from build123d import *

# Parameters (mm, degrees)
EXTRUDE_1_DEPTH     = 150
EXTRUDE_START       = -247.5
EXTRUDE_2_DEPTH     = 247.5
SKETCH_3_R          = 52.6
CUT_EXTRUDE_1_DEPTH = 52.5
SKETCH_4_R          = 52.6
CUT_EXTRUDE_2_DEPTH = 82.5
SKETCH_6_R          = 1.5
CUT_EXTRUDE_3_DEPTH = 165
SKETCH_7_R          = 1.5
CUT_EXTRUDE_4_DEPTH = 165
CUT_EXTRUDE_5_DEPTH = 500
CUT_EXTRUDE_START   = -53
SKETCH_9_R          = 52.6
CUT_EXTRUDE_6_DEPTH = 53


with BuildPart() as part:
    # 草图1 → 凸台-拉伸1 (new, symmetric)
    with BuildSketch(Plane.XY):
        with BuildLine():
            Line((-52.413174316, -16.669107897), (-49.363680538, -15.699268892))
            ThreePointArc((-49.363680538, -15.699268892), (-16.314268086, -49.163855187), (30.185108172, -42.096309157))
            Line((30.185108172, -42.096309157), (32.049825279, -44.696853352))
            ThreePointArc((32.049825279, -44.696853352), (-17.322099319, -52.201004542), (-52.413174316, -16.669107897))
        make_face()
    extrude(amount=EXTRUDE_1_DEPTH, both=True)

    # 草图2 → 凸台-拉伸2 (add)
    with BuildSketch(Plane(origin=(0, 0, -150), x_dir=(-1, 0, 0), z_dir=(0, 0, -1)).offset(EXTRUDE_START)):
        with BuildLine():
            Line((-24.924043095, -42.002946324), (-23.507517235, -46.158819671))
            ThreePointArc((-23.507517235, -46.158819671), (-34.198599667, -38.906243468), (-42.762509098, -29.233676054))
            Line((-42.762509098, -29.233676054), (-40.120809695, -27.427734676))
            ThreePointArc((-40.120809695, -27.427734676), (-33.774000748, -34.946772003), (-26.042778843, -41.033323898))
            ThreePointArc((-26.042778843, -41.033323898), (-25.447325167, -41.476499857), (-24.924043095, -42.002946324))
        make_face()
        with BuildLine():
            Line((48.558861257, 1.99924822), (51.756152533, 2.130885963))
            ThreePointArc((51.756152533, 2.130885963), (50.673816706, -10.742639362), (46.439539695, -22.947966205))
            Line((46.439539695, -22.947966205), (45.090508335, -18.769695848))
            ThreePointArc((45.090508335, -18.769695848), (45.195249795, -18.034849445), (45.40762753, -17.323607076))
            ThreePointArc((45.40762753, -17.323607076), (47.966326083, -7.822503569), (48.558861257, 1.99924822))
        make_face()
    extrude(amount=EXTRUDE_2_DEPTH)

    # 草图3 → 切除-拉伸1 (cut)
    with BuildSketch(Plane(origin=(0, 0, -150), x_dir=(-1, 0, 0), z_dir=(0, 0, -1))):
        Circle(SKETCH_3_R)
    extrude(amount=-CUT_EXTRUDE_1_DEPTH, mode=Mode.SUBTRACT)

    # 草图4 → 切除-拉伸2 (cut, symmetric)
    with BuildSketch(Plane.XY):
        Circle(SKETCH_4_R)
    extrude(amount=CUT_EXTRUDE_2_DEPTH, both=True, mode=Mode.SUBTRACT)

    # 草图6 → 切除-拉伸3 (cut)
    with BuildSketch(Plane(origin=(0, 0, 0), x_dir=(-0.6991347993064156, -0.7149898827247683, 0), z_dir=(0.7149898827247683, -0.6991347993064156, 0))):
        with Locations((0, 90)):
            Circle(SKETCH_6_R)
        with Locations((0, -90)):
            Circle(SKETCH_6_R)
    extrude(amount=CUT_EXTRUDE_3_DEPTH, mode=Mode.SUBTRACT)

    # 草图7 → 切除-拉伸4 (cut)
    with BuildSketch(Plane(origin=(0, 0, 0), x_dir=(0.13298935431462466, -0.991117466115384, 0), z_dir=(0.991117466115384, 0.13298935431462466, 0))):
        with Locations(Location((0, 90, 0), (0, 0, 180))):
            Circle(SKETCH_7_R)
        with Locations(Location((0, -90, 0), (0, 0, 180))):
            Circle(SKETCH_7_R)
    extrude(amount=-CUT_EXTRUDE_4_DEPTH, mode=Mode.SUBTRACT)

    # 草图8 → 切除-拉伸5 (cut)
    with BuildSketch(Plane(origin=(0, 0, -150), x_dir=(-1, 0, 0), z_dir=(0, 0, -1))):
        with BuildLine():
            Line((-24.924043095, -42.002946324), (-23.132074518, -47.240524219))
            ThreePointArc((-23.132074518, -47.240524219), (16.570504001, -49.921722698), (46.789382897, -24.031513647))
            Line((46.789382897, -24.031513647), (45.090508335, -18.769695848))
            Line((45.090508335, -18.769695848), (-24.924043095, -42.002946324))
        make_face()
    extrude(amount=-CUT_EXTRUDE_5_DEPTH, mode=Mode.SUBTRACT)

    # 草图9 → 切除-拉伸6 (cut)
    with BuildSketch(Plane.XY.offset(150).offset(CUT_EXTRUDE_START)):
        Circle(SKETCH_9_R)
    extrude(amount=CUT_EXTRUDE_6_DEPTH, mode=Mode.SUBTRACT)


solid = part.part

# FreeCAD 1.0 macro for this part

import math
import FreeCAD as App
import Part
import Sketcher
from FreeCAD import Vector

doc = App.newDocument("Part")
body = doc.addObject("PartDesign::Body", "Body")

# Sketch on XY plane
sketch1 = body.newObject("Sketcher::SketchObject", "Sketch")
sketch1.AttachmentSupport = (doc.getObject("XY_Plane"), [""])
sketch1.MapMode = "FlatFace"
sketch1.addGeometry([
    Part.LineSegment(Vector(-49.363681, -15.699269, 0), Vector(-52.413174, -16.669108, 0)),
    Part.ArcOfCircle(Part.Circle(Vector(0, 0, 0), Vector(0, 0, 1), 55), math.radians(-162.35763), math.radians(-54.35763)),
    Part.LineSegment(Vector(32.049825, -44.696853, 0), Vector(30.185108, -42.096309, 0)),
    Part.ArcOfCircle(Part.Circle(Vector(0, 0, 0), Vector(0, 0, 1), 51.8), math.radians(-162.35763), math.radians(-54.35763)),
], False)
sketch1.addConstraint([
    Sketcher.Constraint("Coincident", 0, 2, 1, 1),
    Sketcher.Constraint("Coincident", 1, 2, 2, 1),
    Sketcher.Constraint("Coincident", 2, 2, 3, 2),
    Sketcher.Constraint("Coincident", 3, 1, 0, 1),
    Sketcher.Constraint("Coincident", 1, 3, -1, 1),
    Sketcher.Constraint("Coincident", 3, 3, -1, 1),
    Sketcher.Constraint("Radius", 1, 55.0),
    Sketcher.Constraint("Radius", 3, 51.8),
    Sketcher.Constraint("DistanceX", 0, 2, 1, 2, 84.463),
    Sketcher.Constraint("DistanceY", 2, 2, 0, 2, 25.427201),
    Sketcher.Constraint("DistanceX", -1, 1, 2, 2, 30.185108),
    Sketcher.Constraint("DistanceX", 3, 1, -1, 1, 49.363681),
])
pad1 = body.newObject("PartDesign::Pad", "Pad")
pad1.Profile = sketch1
pad1.Length = 300
pad1.Midplane = True

# Sketch on XY plane
sketch2 = body.newObject("Sketcher::SketchObject", "Sketch001")
sketch2.AttachmentSupport = (doc.getObject("XY_Plane"), [""])
sketch2.MapMode = "FlatFace"
sketch2.AttachmentOffset = App.Placement(Vector(0, 0, 97.5), App.Rotation())
sketch2.addGeometry([
    Part.LineSegment(Vector(23.507517, -46.15882, 0), Vector(24.924043, -42.002946, 0)),  # 0
    Part.ArcOfCircle(Part.Circle(Vector(28.722077, -45.254859, 0), Vector(0, 0, 1), 5), math.radians(122.402229), math.radians(139.429546)),  # 1
    Part.ArcOfCircle(Part.Circle(Vector(0, 0, 0), Vector(0, 0, 1), 48.6), math.radians(-57.597771), math.radians(-34.35763)),  # 2
    Part.LineSegment(Vector(40.12081, -27.427735, 0), Vector(42.762509, -29.233676, 0)),  # 3
    Part.ArcOfCircle(Part.Circle(Vector(0, 0, 0), Vector(0, 0, 1), 51.8), math.radians(-63.011409), math.radians(-34.35763)),  # 4
    Part.LineSegment(Vector(-51.756153, 2.130886, 0), Vector(-48.558861, 1.999248, 0)),  # 5
    Part.ArcOfCircle(Part.Circle(Vector(0, 0, 0), Vector(0, 0, 1), 48.6), math.radians(177.64237), math.radians(200.882511)),  # 6
    Part.ArcOfCircle(Part.Circle(Vector(-50.079194, -19.105871, 0), Vector(0, 0, 1), 5), math.radians(3.855194), math.radians(20.882511)),  # 7
    Part.LineSegment(Vector(-45.090508, -18.769696, 0), Vector(-46.43954, -22.947966, 0)),  # 8
    Part.ArcOfCircle(Part.Circle(Vector(0, 0, 0), Vector(0, 0, 1), 51.8), math.radians(177.64237), math.radians(206.296149)),  # 9
], False)
sketch2.addConstraint([
    Sketcher.Constraint("Coincident", 0, 2, 1, 2),
    Sketcher.Constraint("Tangent", 1, 1, 2, 1),
    Sketcher.Constraint("Coincident", 2, 2, 3, 1),
    Sketcher.Constraint("Coincident", 3, 2, 4, 2),
    Sketcher.Constraint("Coincident", 4, 1, 0, 1),
    Sketcher.Constraint("Coincident", 5, 2, 6, 1),
    Sketcher.Constraint("Tangent", 6, 2, 7, 2),
    Sketcher.Constraint("Coincident", 7, 1, 8, 1),
    Sketcher.Constraint("Coincident", 8, 2, 9, 2),
    Sketcher.Constraint("Coincident", 9, 1, 5, 1),
    Sketcher.Constraint("Coincident", 2, 3, -1, 1),
    Sketcher.Constraint("Coincident", 4, 3, -1, 1),
    Sketcher.Constraint("Coincident", 6, 3, -1, 1),
    Sketcher.Constraint("Coincident", 9, 3, -1, 1),
    Sketcher.Constraint("Equal", 2, 6),
    Sketcher.Constraint("Equal", 1, 7),
    Sketcher.Constraint("Equal", 4, 9),
    Sketcher.Constraint("Equal", 0, 8),
    Sketcher.Constraint("Radius", 1, 5.0),
    Sketcher.Constraint("Radius", 2, 48.6),
    Sketcher.Constraint("Radius", 4, 51.8),
    Sketcher.Constraint("DistanceX", 1, 1, 1, 3, 2.679298),
    Sketcher.Constraint("DistanceX", 2, 2, 3, 2, 2.641699),
    Sketcher.Constraint("DistanceY", 7, 3, -1, 1, 19.105871),
    Sketcher.Constraint("DistanceX", -1, 1, 2, 2, 40.12081),
    Sketcher.Constraint("DistanceY", 4, 1, -1, 1, 46.15882),
    Sketcher.Constraint("DistanceX", 5, 2, -1, 1, 48.558861),
    Sketcher.Constraint("DistanceX", 7, 1, -1, 1, 45.090508),
    Sketcher.Constraint("DistanceX", 8, 2, -1, 1, 46.43954),
    Sketcher.Constraint("DistanceX", 9, 1, 5, 2, 3.197291),
])
pad2 = body.newObject("PartDesign::Pad", "Pad001")
pad2.Profile = sketch2
pad2.Length = 247.5
pad2.Reversed = True

# Sketch on XY plane
sketch3 = body.newObject("Sketcher::SketchObject", "Sketch002")
sketch3.AttachmentSupport = (doc.getObject("XY_Plane"), [""])
sketch3.MapMode = "FlatFace"
sketch3.AttachmentOffset = App.Placement(Vector(0, 0, -150), App.Rotation())
sketch3.addGeometry(Part.Circle(Vector(0, 0, 0), Vector(0, 0, 1), 52.6), False)
sketch3.addConstraint([
    Sketcher.Constraint("Coincident", 0, 3, -1, 1),
    Sketcher.Constraint("Diameter", 0, 105.2),
])
pocket1 = body.newObject("PartDesign::Pocket", "Pocket")
pocket1.Profile = sketch3
pocket1.Length = 52.5
pocket1.Reversed = True

# Sketch on XY plane
sketch4 = body.newObject("Sketcher::SketchObject", "Sketch003")
sketch4.AttachmentSupport = (doc.getObject("XY_Plane"), [""])
sketch4.MapMode = "FlatFace"
sketch4.addGeometry(Part.Circle(Vector(0, 0, 0), Vector(0, 0, 1), 52.6), False)
sketch4.addConstraint([
    Sketcher.Constraint("Coincident", 0, 3, -1, 1),
    Sketcher.Constraint("Diameter", 0, 105.2),
])
pocket2 = body.newObject("PartDesign::Pocket", "Pocket001")
pocket2.Profile = sketch4
pocket2.Length = 165
pocket2.Midplane = True

# Sketch on an angled plane
sketch5 = body.newObject("Sketcher::SketchObject", "Sketch004")
sketch5.Placement = App.Placement(Vector(0, 0, 0), App.Rotation(Vector(-0.699134799, -0.714989883, 0), Vector(0, 0, -1), Vector(0.714989883, -0.699134799, 0), "ZXY"))
sketch5.addGeometry([
    Part.Circle(Vector(0, 90, 0), Vector(0, 0, 1), 1.5),
    Part.Circle(Vector(0, -90, 0), Vector(0, 0, 1), 1.5),
], False)
sketch5.addConstraint([
    Sketcher.Constraint("Equal", 0, 1),
    Sketcher.Constraint("Symmetric", 0, 3, 1, 3, -1, 1),
    Sketcher.Constraint("PointOnObject", 0, 3, -2),
    Sketcher.Constraint("Diameter", 0, 3.0),
    Sketcher.Constraint("DistanceY", -1, 1, 0, 3, 90.0),
])
pocket3 = body.newObject("PartDesign::Pocket", "Pocket002")
pocket3.Profile = sketch5
pocket3.Length = 165
pocket3.Reversed = True

# Sketch on an angled plane
sketch6 = body.newObject("Sketcher::SketchObject", "Sketch005")
sketch6.Placement = App.Placement(Vector(0, 0, 0), App.Rotation(Vector(0.132989354, -0.991117466, 0), Vector(0, 0, -1), Vector(0.991117466, 0.132989354, 0), "ZXY"))
sketch6.addGeometry([
    Part.Circle(Vector(0, 90, 0), Vector(0, 0, 1), 1.5),
    Part.Circle(Vector(0, -90, 0), Vector(0, 0, 1), 1.5),
], False)
sketch6.addConstraint([
    Sketcher.Constraint("Equal", 0, 1),
    Sketcher.Constraint("Symmetric", 0, 3, 1, 3, -1, 1),
    Sketcher.Constraint("PointOnObject", 0, 3, -2),
    Sketcher.Constraint("Diameter", 0, 3.0),
    Sketcher.Constraint("DistanceY", -1, 1, 0, 3, 90.0),
])
pocket4 = body.newObject("PartDesign::Pocket", "Pocket003")
pocket4.Profile = sketch6
pocket4.Length = 165

# Sketch on XY plane
sketch7 = body.newObject("Sketcher::SketchObject", "Sketch006")
sketch7.AttachmentSupport = (doc.getObject("XY_Plane"), [""])
sketch7.MapMode = "FlatFace"
sketch7.AttachmentOffset = App.Placement(Vector(0, 0, -150), App.Rotation())
sketch7.addGeometry([
    Part.LineSegment(Vector(24.924043, -42.002946, 0), Vector(23.132075, -47.240524, 0)),
    Part.ArcOfCircle(Part.Circle(Vector(0, 0, 0), Vector(0, 0, 1), 52.6), math.radians(-152.814496), math.radians(-63.910584)),
    Part.LineSegment(Vector(-46.789383, -24.031514, 0), Vector(-45.090508, -18.769696, 0)),
    Part.LineSegment(Vector(-45.090508, -18.769696, 0), Vector(24.924043, -42.002946, 0)),
], False)
sketch7.addConstraint([
    Sketcher.Constraint("Coincident", 0, 2, 1, 2),
    Sketcher.Constraint("Coincident", 1, 1, 2, 1),
    Sketcher.Constraint("Coincident", 2, 2, 3, 1),
    Sketcher.Constraint("Coincident", 3, 2, 0, 1),
    Sketcher.Constraint("Coincident", 1, 3, -1, 1),
    Sketcher.Constraint("Radius", 1, 52.6),
    Sketcher.Constraint("Distance", 3, 73.768702),
    Sketcher.Constraint("DistanceX", 2, 2, -1, 1, 45.090508),
    Sketcher.Constraint("DistanceY", 0, 2, 1, 1, 23.209011),
    Sketcher.Constraint("DistanceY", 0, 2, 2, 2, 28.470828),
    Sketcher.Constraint("DistanceX", 0, 2, 3, 2, 1.791969),
    Sketcher.Constraint("DistanceX", 2, 2, 3, 2, 70.014551),
])
pocket5 = body.newObject("PartDesign::Pocket", "Pocket004")
pocket5.Profile = sketch7
pocket5.Length = 500
pocket5.Reversed = True

# Sketch on XY plane
sketch8 = body.newObject("Sketcher::SketchObject", "Sketch007")
sketch8.AttachmentSupport = (doc.getObject("XY_Plane"), [""])
sketch8.MapMode = "FlatFace"
sketch8.AttachmentOffset = App.Placement(Vector(0, 0, 97), App.Rotation())
sketch8.addGeometry(Part.Circle(Vector(0, 0, 0), Vector(0, 0, 1), 52.6), False)
sketch8.addConstraint([
    Sketcher.Constraint("Coincident", 0, 3, -1, 1),
    Sketcher.Constraint("Diameter", 0, 105.2),
])
pocket6 = body.newObject("PartDesign::Pocket", "Pocket005")
pocket6.Profile = sketch8
pocket6.Length = 53
pocket6.Reversed = True

doc.recompute()
